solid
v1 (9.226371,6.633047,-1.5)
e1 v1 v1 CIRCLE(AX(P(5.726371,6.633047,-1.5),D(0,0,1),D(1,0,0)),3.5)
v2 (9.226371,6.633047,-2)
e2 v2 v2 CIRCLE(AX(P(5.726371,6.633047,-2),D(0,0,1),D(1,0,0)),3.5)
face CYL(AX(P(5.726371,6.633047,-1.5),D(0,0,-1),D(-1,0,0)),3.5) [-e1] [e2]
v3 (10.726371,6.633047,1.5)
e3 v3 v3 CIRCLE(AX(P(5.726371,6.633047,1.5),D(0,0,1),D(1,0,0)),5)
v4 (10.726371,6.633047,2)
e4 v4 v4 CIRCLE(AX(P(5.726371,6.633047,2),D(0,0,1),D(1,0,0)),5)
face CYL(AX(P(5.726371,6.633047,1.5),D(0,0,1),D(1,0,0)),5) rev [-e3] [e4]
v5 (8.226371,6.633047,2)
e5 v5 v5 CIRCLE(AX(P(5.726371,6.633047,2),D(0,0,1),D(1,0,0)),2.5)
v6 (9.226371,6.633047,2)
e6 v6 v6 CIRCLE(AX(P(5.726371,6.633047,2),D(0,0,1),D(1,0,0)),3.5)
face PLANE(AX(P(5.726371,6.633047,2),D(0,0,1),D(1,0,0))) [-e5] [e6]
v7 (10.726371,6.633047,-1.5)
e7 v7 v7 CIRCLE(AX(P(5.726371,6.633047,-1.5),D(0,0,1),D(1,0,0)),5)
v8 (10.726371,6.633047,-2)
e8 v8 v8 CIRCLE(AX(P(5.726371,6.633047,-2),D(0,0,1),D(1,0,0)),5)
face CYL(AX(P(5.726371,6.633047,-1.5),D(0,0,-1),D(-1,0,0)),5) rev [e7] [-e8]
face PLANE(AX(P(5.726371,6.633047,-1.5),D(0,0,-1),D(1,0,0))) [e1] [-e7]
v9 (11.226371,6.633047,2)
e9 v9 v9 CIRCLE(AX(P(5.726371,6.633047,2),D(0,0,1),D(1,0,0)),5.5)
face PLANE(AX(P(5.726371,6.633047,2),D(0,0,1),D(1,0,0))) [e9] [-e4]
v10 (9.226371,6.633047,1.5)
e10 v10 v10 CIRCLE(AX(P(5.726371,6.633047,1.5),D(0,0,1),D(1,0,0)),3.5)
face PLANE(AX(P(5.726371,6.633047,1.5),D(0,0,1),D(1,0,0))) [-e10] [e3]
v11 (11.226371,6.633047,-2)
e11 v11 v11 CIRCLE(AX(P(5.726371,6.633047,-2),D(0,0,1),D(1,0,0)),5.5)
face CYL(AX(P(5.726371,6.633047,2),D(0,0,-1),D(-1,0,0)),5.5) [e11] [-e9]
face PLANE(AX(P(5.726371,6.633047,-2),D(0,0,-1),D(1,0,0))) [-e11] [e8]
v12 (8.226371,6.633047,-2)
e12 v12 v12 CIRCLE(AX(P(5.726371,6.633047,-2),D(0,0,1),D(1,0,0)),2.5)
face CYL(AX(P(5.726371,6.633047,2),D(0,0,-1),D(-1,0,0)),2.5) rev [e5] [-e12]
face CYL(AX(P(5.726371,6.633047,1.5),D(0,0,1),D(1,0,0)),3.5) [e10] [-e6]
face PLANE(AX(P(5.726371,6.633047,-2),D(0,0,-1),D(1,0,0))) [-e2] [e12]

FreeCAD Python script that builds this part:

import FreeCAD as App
import Part
import Sketcher

V = App.Vector

doc = App.newDocument("Part")
body = doc.addObject("PartDesign::Body", "Body")

# Sketch on XY plane
sketch1 = body.newObject("Sketcher::SketchObject", "Sketch")
sketch1.AttachmentSupport = (doc.getObject("XY_Plane"), [""])
sketch1.MapMode = "FlatFace"
sketch1.addGeometry([
    Part.Circle(V(5.7, 6.6, 0), V(0, 0, 1), 5.5),
    Part.Circle(V(5.7, 6.6, 0), V(0, 0, 1), 2.5),
], False)
sketch1.addConstraint([
    Sketcher.Constraint("Coincident", 1, 3, 0, 3),
    Sketcher.Constraint("Diameter", 0, 11.0),
    Sketcher.Constraint("Diameter", 1, 5.0),
    Sketcher.Constraint("DistanceX", -1, 1, 0, 3, 5.726371),
    Sketcher.Constraint("DistanceY", -1, 1, 0, 3, 6.633047),
])
pad1 = body.newObject("PartDesign::Pad", "Pad")
pad1.Profile = sketch1
pad1.Length = 2

# Sketch on XY plane
sketch2 = body.newObject("Sketcher::SketchObject", "Sketch001")
sketch2.AttachmentSupport = (doc.getObject("XY_Plane"), [""])
sketch2.MapMode = "FlatFace"
sketch2.AttachmentOffset = App.Placement(V(0, 0, 2), App.Rotation())
sketch2.addGeometry([
    Part.Circle(V(5.7, 6.6, 0), V(0, 0, 1), 5),
    Part.Circle(V(5.7, 6.6, 0), V(0, 0, 1), 3.5),
], False)
sketch2.addConstraint([
    Sketcher.Constraint("Coincident", 1, 3, 0, 3),
    Sketcher.Constraint("Diameter", 0, 10.0),
    Sketcher.Constraint("Diameter", 1, 7.0),
    Sketcher.Constraint("DistanceX", -1, 1, 0, 3, 5.726371),
    Sketcher.Constraint("DistanceY", -1, 1, 0, 3, 6.633047),
])
pocket1 = body.newObject("PartDesign::Pocket", "Pocket")
pocket1.Profile = sketch2
pocket1.Length = 0.5
doc.recompute()

mirrored = body.newObject("PartDesign::Mirrored", "Mirrored")
mirrored.Originals = [pad1, pocket1]
mirrored.MirrorPlane = (doc.getObject("XY_Plane"), [""])
body.Tip = mirrored

doc.recompute()
